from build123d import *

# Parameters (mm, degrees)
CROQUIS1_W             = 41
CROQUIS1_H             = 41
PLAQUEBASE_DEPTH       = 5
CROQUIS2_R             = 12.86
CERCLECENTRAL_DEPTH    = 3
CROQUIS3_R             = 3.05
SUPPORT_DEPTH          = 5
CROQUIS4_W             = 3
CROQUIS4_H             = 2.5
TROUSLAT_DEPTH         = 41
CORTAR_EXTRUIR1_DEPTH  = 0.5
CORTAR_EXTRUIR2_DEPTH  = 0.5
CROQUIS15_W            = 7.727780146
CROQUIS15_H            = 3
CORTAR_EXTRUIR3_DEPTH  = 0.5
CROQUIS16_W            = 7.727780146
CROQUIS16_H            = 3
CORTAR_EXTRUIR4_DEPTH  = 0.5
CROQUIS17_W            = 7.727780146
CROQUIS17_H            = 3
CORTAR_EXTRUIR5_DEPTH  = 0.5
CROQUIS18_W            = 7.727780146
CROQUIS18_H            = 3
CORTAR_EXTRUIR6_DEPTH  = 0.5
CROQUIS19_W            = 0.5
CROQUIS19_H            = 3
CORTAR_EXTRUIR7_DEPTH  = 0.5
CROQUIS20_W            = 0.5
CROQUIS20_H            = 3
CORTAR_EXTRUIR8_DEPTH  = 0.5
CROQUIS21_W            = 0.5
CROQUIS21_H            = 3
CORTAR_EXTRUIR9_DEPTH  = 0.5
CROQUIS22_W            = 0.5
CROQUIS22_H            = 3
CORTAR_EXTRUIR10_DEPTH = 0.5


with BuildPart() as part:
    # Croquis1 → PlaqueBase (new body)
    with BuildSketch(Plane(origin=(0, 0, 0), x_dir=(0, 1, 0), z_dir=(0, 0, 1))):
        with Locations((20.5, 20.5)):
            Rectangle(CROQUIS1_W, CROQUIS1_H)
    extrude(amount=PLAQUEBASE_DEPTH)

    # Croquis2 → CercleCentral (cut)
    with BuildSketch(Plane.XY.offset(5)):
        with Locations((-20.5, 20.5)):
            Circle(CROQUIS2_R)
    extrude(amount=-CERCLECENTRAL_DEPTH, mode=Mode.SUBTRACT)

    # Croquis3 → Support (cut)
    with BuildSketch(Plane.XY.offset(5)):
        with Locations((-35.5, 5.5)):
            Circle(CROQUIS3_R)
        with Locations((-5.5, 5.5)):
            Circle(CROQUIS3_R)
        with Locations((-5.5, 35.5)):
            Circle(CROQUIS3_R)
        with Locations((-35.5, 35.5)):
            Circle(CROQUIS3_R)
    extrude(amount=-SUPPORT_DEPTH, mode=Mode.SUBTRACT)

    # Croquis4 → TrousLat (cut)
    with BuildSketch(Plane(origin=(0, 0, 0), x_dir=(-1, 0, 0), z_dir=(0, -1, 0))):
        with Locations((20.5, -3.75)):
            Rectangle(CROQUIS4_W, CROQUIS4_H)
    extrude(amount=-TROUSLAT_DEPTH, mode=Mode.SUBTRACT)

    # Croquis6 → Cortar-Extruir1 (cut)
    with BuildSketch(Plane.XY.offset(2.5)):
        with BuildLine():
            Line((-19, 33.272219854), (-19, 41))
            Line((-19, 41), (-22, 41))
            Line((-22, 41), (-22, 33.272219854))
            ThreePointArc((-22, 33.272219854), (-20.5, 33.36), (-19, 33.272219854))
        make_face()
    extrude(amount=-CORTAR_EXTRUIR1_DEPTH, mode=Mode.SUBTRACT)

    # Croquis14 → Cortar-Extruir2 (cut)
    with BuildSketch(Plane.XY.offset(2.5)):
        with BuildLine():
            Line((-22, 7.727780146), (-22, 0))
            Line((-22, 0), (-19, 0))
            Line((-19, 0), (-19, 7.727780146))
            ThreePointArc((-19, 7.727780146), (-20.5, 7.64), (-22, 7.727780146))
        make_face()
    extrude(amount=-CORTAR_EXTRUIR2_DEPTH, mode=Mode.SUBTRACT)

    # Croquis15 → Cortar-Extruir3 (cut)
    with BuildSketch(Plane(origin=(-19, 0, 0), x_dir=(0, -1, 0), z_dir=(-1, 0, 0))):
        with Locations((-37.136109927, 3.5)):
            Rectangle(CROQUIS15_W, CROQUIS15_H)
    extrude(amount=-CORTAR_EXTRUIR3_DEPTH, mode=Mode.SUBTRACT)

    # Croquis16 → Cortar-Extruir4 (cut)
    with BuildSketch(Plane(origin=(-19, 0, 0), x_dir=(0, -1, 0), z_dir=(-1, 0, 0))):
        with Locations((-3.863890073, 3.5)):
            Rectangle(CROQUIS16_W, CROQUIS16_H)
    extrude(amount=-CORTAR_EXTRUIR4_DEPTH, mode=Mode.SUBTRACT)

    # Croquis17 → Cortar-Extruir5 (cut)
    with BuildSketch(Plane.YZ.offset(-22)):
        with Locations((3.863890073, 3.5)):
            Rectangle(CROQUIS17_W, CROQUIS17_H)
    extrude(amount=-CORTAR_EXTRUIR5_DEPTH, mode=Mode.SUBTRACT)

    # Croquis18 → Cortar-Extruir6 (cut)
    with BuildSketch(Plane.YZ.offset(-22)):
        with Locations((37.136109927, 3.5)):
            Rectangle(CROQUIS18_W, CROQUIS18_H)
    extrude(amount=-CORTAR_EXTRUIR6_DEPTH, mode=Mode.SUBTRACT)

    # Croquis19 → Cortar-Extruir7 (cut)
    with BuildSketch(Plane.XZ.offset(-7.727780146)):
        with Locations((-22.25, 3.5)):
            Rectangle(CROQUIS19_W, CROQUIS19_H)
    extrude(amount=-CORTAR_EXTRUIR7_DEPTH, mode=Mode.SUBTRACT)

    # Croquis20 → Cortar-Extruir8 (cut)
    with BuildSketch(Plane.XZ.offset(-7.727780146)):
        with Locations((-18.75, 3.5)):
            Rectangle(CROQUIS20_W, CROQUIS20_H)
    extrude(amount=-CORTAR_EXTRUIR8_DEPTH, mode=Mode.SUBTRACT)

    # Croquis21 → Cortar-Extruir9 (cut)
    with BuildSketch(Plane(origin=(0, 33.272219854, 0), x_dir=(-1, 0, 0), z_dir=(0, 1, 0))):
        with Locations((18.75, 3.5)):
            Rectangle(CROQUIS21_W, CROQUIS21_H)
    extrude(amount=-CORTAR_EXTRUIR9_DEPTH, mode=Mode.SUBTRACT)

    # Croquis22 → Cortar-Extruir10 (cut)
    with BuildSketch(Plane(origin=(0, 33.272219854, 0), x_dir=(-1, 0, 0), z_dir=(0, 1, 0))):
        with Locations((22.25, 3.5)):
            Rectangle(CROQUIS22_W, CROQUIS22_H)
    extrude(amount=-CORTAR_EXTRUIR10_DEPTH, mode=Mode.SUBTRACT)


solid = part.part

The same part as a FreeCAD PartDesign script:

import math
import FreeCAD as App
import Part
import Sketcher
Q = App.Units.Quantity


def add_polygon(sketch, points):
    """Adds a closed chain of lines whose ends are joined by coincident constraints."""
    first, n = sketch.GeometryCount, len(points)
    for a, b in zip(points, points[1:] + points[:1]):
        sketch.addGeometry(Part.LineSegment(App.Vector(*a, 0), App.Vector(*b, 0)), False)
    for i in range(n):
        sketch.addConstraint(Sketcher.Constraint("Coincident", first + i, 2, first + (i + 1) % n, 1))

doc = App.newDocument("Part")
body = doc.addObject("PartDesign::Body", "Body")

sketch1 = body.newObject("Sketcher::SketchObject", "Sketch")
sketch1.AttachmentSupport = (doc.getObject("XY_Plane"), [""])
sketch1.MapMode = "FlatFace"
add_polygon(sketch1, [(-41, 0), (0, 0), (0, 41), (-41, 41)])
sketch1.addConstraint([
    Sketcher.Constraint("Horizontal", 0),
    Sketcher.Constraint("Vertical", 1),
    Sketcher.Constraint("Horizontal", 2),
    Sketcher.Constraint("Vertical", 3),
    Sketcher.Constraint("Coincident", 0, 2, -1, 1),
    Sketcher.Constraint("Equal", 2, 1),
    Sketcher.Constraint("DistanceX", 0, 1, 0, 2, Q("41 mm")),
])
pad1 = body.newObject("PartDesign::Pad", "Pad")
pad1.Profile = sketch1
pad1.Length = 5

sketch2 = body.newObject("Sketcher::SketchObject", "Sketch001")
sketch2.AttachmentSupport = (doc.getObject("XY_Plane"), [""])
sketch2.MapMode = "FlatFace"
sketch2.AttachmentOffset = App.Placement(App.Vector(0, 0, 5), App.Rotation())
sketch2.addGeometry(Part.Circle(App.Vector(-20.5, 20.5, 0), App.Vector(0, 0, 1), 12.86), False)
sketch2.addConstraint([
    Sketcher.Constraint("Diameter", 0, Q("25.72 mm")),
    Sketcher.Constraint("DistanceX", 0, 3, -1, 1, Q("20.5 mm")),
    Sketcher.Constraint("DistanceY", -1, 1, 0, 3, Q("20.5 mm")),
])
pocket1 = body.newObject("PartDesign::Pocket", "Pocket")
pocket1.Profile = sketch2
pocket1.Length = 3

sketch3 = body.newObject("Sketcher::SketchObject", "Sketch002")
sketch3.AttachmentSupport = (doc.getObject("XY_Plane"), [""])
sketch3.MapMode = "FlatFace"
sketch3.AttachmentOffset = App.Placement(App.Vector(0, 0, 5), App.Rotation())
sketch3.addGeometry([
    Part.Circle(App.Vector(-35.5, 5.5, 0), App.Vector(0, 0, 1), 3.05),
    Part.Circle(App.Vector(-5.5, 5.5, 0), App.Vector(0, 0, 1), 3.05),
    Part.Circle(App.Vector(-5.5, 35.5, 0), App.Vector(0, 0, 1), 3.05),
    Part.Circle(App.Vector(-35.5, 35.5, 0), App.Vector(0, 0, 1), 3.05),
], False)
sketch3.addConstraint([
    Sketcher.Constraint("Equal", 0, 1),
    Sketcher.Constraint("Equal", 1, 2),
    Sketcher.Constraint("Equal", 2, 3),
    Sketcher.Constraint("Horizontal", 0, 3, 1, 3),
    Sketcher.Constraint("Horizontal", 2, 3, 3, 3),
    Sketcher.Constraint("Vertical", 1, 3, 2, 3),
    Sketcher.Constraint("Vertical", 0, 3, 3, 3),
    Sketcher.Constraint("Diameter", 0, Q("6.1 mm")),
    Sketcher.Constraint("DistanceX", 0, 3, 1, 3, Q("30 mm")),
    Sketcher.Constraint("DistanceY", 1, 3, 2, 3, Q("30 mm")),
    Sketcher.Constraint("DistanceX", 0, 3, -1, 1, Q("35.5 mm")),
    Sketcher.Constraint("DistanceY", -1, 1, 0, 3, Q("5.5 mm")),
])
pocket2 = body.newObject("PartDesign::Pocket", "Pocket001")
pocket2.Profile = sketch3
pocket2.Length = 5

sketch4 = body.newObject("Sketcher::SketchObject", "Sketch003")
sketch4.AttachmentSupport = (doc.getObject("XZ_Plane"), [""])
sketch4.MapMode = "FlatFace"
add_polygon(sketch4, [(-19, 2.5), (-19, 5), (-22, 5), (-22, 2.5)])
sketch4.addConstraint([
    Sketcher.Constraint("Vertical", 0),
    Sketcher.Constraint("Horizontal", 1),
    Sketcher.Constraint("Vertical", 2),
    Sketcher.Constraint("Horizontal", 3),
    Sketcher.Constraint("DistanceX", 1, 2, 1, 1, Q("3 mm")),
    Sketcher.Constraint("DistanceY", 0, 1, 0, 2, Q("2.5 mm")),
    Sketcher.Constraint("DistanceX", 0, 2, -1, 1, Q("19 mm")),
    Sketcher.Constraint("DistanceY", -1, 1, 0, 2, Q("5 mm")),
])
pocket3 = body.newObject("PartDesign::Pocket", "Pocket002")
pocket3.Profile = sketch4
pocket3.Length = 41

sketch5 = body.newObject("Sketcher::SketchObject", "Sketch004")
sketch5.AttachmentSupport = (doc.getObject("XY_Plane"), [""])
sketch5.MapMode = "FlatFace"
sketch5.AttachmentOffset = App.Placement(App.Vector(0, 0, 2.5), App.Rotation())
sketch5.addGeometry([
    Part.LineSegment(App.Vector(-19, 33.27222, 0), App.Vector(-19, 41, 0)),
    Part.LineSegment(App.Vector(-19, 41, 0), App.Vector(-22, 41, 0)),
    Part.LineSegment(App.Vector(-22, 41, 0), App.Vector(-22, 33.27222, 0)),
    Part.ArcOfCircle(Part.Circle(App.Vector(-20.5, 20.5, 0), App.Vector(0, 0, 1), 12.86), math.radians(83.30173), math.radians(96.69827)),
], False)
sketch5.addConstraint([
    Sketcher.Constraint("Coincident", 0, 2, 1, 1),
    Sketcher.Constraint("Coincident", 1, 2, 2, 1),
    Sketcher.Constraint("Coincident", 2, 2, 3, 2),
    Sketcher.Constraint("Coincident", 3, 1, 0, 1),
    Sketcher.Constraint("Vertical", 0),
    Sketcher.Constraint("Horizontal", 1),
    Sketcher.Constraint("Vertical", 2),
    Sketcher.Constraint("Horizontal", 2, 2, 3, 1),
    Sketcher.Constraint("DistanceX", 1, 2, 1, 1, Q("3 mm")),
    Sketcher.Constraint("Radius", 3, Q("12.86 mm")),
    Sketcher.Constraint("DistanceX", 0, 2, -1, 1, Q("19 mm")),
    Sketcher.Constraint("DistanceY", -1, 1, 0, 2, Q("41 mm")),
    Sketcher.Constraint("DistanceY", -1, 1, 3, 3, Q("20.5 mm")),
])
pocket4 = body.newObject("PartDesign::Pocket", "Pocket003")
pocket4.Profile = sketch5
pocket4.Length = 0.5

sketch6 = body.newObject("Sketcher::SketchObject", "Sketch005")
sketch6.AttachmentSupport = (doc.getObject("XY_Plane"), [""])
sketch6.MapMode = "FlatFace"
sketch6.AttachmentOffset = App.Placement(App.Vector(0, 0, 2.5), App.Rotation())
sketch6.addGeometry([
    Part.LineSegment(App.Vector(-22, 7.72778, 0), App.Vector(-22, 0, 0)),
    Part.LineSegment(App.Vector(-22, 0, 0), App.Vector(-19, 0, 0)),
    Part.LineSegment(App.Vector(-19, 0, 0), App.Vector(-19, 7.72778, 0)),
    Part.ArcOfCircle(Part.Circle(App.Vector(-20.5, 20.5, 0), App.Vector(0, 0, 1), 12.86), math.radians(-96.69827), math.radians(-83.30173)),
], False)
sketch6.addConstraint([
    Sketcher.Constraint("Coincident", 0, 2, 1, 1),
    Sketcher.Constraint("Coincident", 1, 2, 2, 1),
    Sketcher.Constraint("Coincident", 2, 2, 3, 2),
    Sketcher.Constraint("Coincident", 3, 1, 0, 1),
    Sketcher.Constraint("Vertical", 0),
    Sketcher.Constraint("Horizontal", 1),
    Sketcher.Constraint("Vertical", 2),
    Sketcher.Constraint("PointOnObject", 0, 2, -1),
    Sketcher.Constraint("Horizontal", 2, 2, 3, 1),
    Sketcher.Constraint("DistanceX", 1, 1, 1, 2, Q("3 mm")),
    Sketcher.Constraint("Radius", 3, Q("12.86 mm")),
    Sketcher.Constraint("DistanceX", 0, 2, -1, 1, Q("22 mm")),
    Sketcher.Constraint("DistanceY", -1, 1, 3, 3, Q("20.5 mm")),
])
pocket5 = body.newObject("PartDesign::Pocket", "Pocket004")
pocket5.Profile = sketch6
pocket5.Length = 0.5

sketch7 = body.newObject("Sketcher::SketchObject", "Sketch006")
sketch7.AttachmentSupport = (doc.getObject("YZ_Plane"), [""])
sketch7.MapMode = "FlatFace"
sketch7.AttachmentOffset = App.Placement(App.Vector(0, 0, -19), App.Rotation())
add_polygon(sketch7, [(41, 5), (41, 2), (33.27222, 2), (33.27222, 5)])
sketch7.addConstraint([
    Sketcher.Constraint("Vertical", 0),
    Sketcher.Constraint("Horizontal", 1),
    Sketcher.Constraint("Vertical", 2),
    Sketcher.Constraint("Horizontal", 3),
    Sketcher.Constraint("DistanceY", 0, 2, 0, 1, Q("3 mm")),
    Sketcher.Constraint("DistanceX", -1, 1, 0, 2, Q("41 mm")),
    Sketcher.Constraint("DistanceY", -1, 1, 0, 2, Q("2 mm")),
    Sketcher.Constraint("DistanceX", 1, 2, 1, 1, Q("7.72778 mm")),
])
pocket6 = body.newObject("PartDesign::Pocket", "Pocket005")
pocket6.Profile = sketch7
pocket6.Length = 0.5
pocket6.Reversed = True

sketch8 = body.newObject("Sketcher::SketchObject", "Sketch007")
sketch8.AttachmentSupport = (doc.getObject("YZ_Plane"), [""])
sketch8.MapMode = "FlatFace"
sketch8.AttachmentOffset = App.Placement(App.Vector(0, 0, -19), App.Rotation())
add_polygon(sketch8, [(7.72778, 5), (7.72778, 2), (0, 2), (0, 5)])
sketch8.addConstraint([
    Sketcher.Constraint("Vertical", 0),
    Sketcher.Constraint("Horizontal", 1),
    Sketcher.Constraint("Vertical", 2),
    Sketcher.Constraint("Horizontal", 3),
    Sketcher.Constraint("PointOnObject", 1, 2, -2),
    Sketcher.Constraint("DistanceY", 0, 2, 0, 1, Q("3 mm")),
    Sketcher.Constraint("DistanceY", -1, 1, 0, 2, Q("2 mm")),
    Sketcher.Constraint("DistanceX", 1, 2, 1, 1, Q("7.72778 mm")),
])
pocket7 = body.newObject("PartDesign::Pocket", "Pocket006")
pocket7.Profile = sketch8
pocket7.Length = 0.5
pocket7.Reversed = True

sketch9 = body.newObject("Sketcher::SketchObject", "Sketch008")
sketch9.AttachmentSupport = (doc.getObject("YZ_Plane"), [""])
sketch9.MapMode = "FlatFace"
sketch9.AttachmentOffset = App.Placement(App.Vector(0, 0, -22), App.Rotation())
add_polygon(sketch9, [(0, 5), (0, 2), (7.72778, 2), (7.72778, 5)])
sketch9.addConstraint([
    Sketcher.Constraint("Vertical", 0),
    Sketcher.Constraint("Horizontal", 1),
    Sketcher.Constraint("Vertical", 2),
    Sketcher.Constraint("Horizontal", 3),
    Sketcher.Constraint("PointOnObject", 0, 2, -2),
    Sketcher.Constraint("DistanceY", 0, 2, 0, 1, Q("3 mm")),
    Sketcher.Constraint("DistanceY", -1, 1, 0, 2, Q("2 mm")),
    Sketcher.Constraint("DistanceX", 1, 1, 1, 2, Q("7.72778 mm")),
])
pocket8 = body.newObject("PartDesign::Pocket", "Pocket007")
pocket8.Profile = sketch9
pocket8.Length = 0.5

sketch10 = body.newObject("Sketcher::SketchObject", "Sketch009")
sketch10.AttachmentSupport = (doc.getObject("YZ_Plane"), [""])
sketch10.MapMode = "FlatFace"
sketch10.AttachmentOffset = App.Placement(App.Vector(0, 0, -22), App.Rotation())
add_polygon(sketch10, [(33.27222, 5), (33.27222, 2), (41, 2), (41, 5)])
sketch10.addConstraint([
    Sketcher.Constraint("Vertical", 0),
    Sketcher.Constraint("Horizontal", 1),
    Sketcher.Constraint("Vertical", 2),
    Sketcher.Constraint("Horizontal", 3),
    Sketcher.Constraint("DistanceY", 0, 2, 0, 1, Q("3 mm")),
    Sketcher.Constraint("DistanceY", -1, 1, 0, 2, Q("2 mm")),
    Sketcher.Constraint("DistanceX", -1, 1, 1, 2, Q("41 mm")),
    Sketcher.Constraint("DistanceX", 1, 1, 1, 2, Q("7.72778 mm")),
])
pocket9 = body.newObject("PartDesign::Pocket", "Pocket008")
pocket9.Profile = sketch10
pocket9.Length = 0.5

sketch11 = body.newObject("Sketcher::SketchObject", "Sketch010")
sketch11.AttachmentSupport = (doc.getObject("XZ_Plane"), [""])
sketch11.MapMode = "FlatFace"
sketch11.AttachmentOffset = App.Placement(App.Vector(0, 0, -7.72778), App.Rotation())
add_polygon(sketch11, [(-22.5, 5), (-22.5, 2), (-22, 2), (-22, 5)])
sketch11.addConstraint([
    Sketcher.Constraint("Vertical", 0),
    Sketcher.Constraint("Horizontal", 1),
    Sketcher.Constraint("Vertical", 2),
    Sketcher.Constraint("Horizontal", 3),
    Sketcher.Constraint("DistanceY", 0, 2, 0, 1, Q("3 mm")),
    Sketcher.Constraint("DistanceX", 1, 1, 1, 2, Q("0.5 mm")),
    Sketcher.Constraint("DistanceY", -1, 1, 0, 2, Q("2 mm")),
    Sketcher.Constraint("DistanceX", 1, 2, -1, 1, Q("22 mm")),
])
pocket10 = body.newObject("PartDesign::Pocket", "Pocket009")
pocket10.Profile = sketch11
pocket10.Length = 0.5

sketch12 = body.newObject("Sketcher::SketchObject", "Sketch011")
sketch12.AttachmentSupport = (doc.getObject("XZ_Plane"), [""])
sketch12.MapMode = "FlatFace"
sketch12.AttachmentOffset = App.Placement(App.Vector(0, 0, -7.72778), App.Rotation())
add_polygon(sketch12, [(-19, 5), (-19, 2), (-18.5, 2), (-18.5, 5)])
sketch12.addConstraint([
    Sketcher.Constraint("Vertical", 0),
    Sketcher.Constraint("Horizontal", 1),
    Sketcher.Constraint("Vertical", 2),
    Sketcher.Constraint("Horizontal", 3),
    Sketcher.Constraint("DistanceY", 0, 2, 0, 1, Q("3 mm")),
    Sketcher.Constraint("DistanceX", 1, 1, 1, 2, Q("0.5 mm")),
    Sketcher.Constraint("DistanceX", 0, 2, -1, 1, Q("19 mm")),
    Sketcher.Constraint("DistanceY", -1, 1, 0, 2, Q("2 mm")),
])
pocket11 = body.newObject("PartDesign::Pocket", "Pocket010")
pocket11.Profile = sketch12
pocket11.Length = 0.5

sketch13 = body.newObject("Sketcher::SketchObject", "Sketch012")
sketch13.AttachmentSupport = (doc.getObject("XZ_Plane"), [""])
sketch13.MapMode = "FlatFace"
sketch13.AttachmentOffset = App.Placement(App.Vector(0, 0, -33.27222), App.Rotation())
add_polygon(sketch13, [(-18.5, 5), (-18.5, 2), (-19, 2), (-19, 5)])
sketch13.addConstraint([
    Sketcher.Constraint("Vertical", 0),
    Sketcher.Constraint("Horizontal", 1),
    Sketcher.Constraint("Vertical", 2),
    Sketcher.Constraint("Horizontal", 3),
    Sketcher.Constraint("DistanceY", 0, 2, 0, 1, Q("3 mm")),
    Sketcher.Constraint("DistanceX", 1, 2, 1, 1, Q("0.5 mm")),
    Sketcher.Constraint("DistanceY", -1, 1, 0, 2, Q("2 mm")),
    Sketcher.Constraint("DistanceX", 1, 2, -1, 1, Q("19 mm")),
])
pocket12 = body.newObject("PartDesign::Pocket", "Pocket011")
pocket12.Profile = sketch13
pocket12.Length = 0.5
pocket12.Reversed = True

sketch14 = body.newObject("Sketcher::SketchObject", "Sketch013")
sketch14.AttachmentSupport = (doc.getObject("XZ_Plane"), [""])
sketch14.MapMode = "FlatFace"
sketch14.AttachmentOffset = App.Placement(App.Vector(0, 0, -33.27222), App.Rotation())
add_polygon(sketch14, [(-22, 5), (-22, 2), (-22.5, 2), (-22.5, 5)])
sketch14.addConstraint([
    Sketcher.Constraint("Vertical", 0),
    Sketcher.Constraint("Horizontal", 1),
    Sketcher.Constraint("Vertical", 2),
    Sketcher.Constraint("Horizontal", 3),
    Sketcher.Constraint("DistanceY", 0, 2, 0, 1, Q("3 mm")),
    Sketcher.Constraint("DistanceX", 1, 2, 1, 1, Q("0.5 mm")),
    Sketcher.Constraint("DistanceX", 0, 2, -1, 1, Q("22 mm")),
    Sketcher.Constraint("DistanceY", -1, 1, 0, 2, Q("2 mm")),
])
pocket13 = body.newObject("PartDesign::Pocket", "Pocket012")
pocket13.Profile = sketch14
pocket13.Length = 0.5
pocket13.Reversed = True

doc.recompute()
